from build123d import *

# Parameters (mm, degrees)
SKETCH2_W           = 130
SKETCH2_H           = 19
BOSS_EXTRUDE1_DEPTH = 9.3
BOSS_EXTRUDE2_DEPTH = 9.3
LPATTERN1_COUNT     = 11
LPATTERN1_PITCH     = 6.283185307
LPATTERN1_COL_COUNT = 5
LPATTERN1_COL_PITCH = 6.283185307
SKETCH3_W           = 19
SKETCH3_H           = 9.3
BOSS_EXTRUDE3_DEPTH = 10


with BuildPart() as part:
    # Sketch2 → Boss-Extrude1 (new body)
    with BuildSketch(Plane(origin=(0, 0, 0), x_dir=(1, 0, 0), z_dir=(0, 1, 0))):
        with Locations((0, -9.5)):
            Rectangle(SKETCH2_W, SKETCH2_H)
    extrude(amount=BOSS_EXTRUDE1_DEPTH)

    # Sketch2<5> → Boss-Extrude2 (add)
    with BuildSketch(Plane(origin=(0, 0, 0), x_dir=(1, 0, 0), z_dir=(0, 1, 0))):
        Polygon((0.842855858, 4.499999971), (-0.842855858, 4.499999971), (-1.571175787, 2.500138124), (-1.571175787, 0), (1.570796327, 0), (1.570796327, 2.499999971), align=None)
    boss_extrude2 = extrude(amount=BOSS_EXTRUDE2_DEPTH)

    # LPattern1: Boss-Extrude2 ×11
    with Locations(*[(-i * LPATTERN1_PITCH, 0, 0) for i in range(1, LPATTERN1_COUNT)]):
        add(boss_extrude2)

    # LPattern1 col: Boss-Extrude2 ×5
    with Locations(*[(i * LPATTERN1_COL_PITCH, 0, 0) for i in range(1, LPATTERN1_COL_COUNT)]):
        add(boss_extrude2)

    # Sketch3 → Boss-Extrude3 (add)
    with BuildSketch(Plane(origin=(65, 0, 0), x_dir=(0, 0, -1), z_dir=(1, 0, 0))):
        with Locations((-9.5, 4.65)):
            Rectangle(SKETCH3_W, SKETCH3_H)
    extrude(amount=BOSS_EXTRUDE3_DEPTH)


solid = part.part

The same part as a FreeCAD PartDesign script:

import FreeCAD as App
import Part
import Sketcher

V = App.Vector
Q = App.Units.Quantity


def add_polygon(sketch, points):
    """Adds a closed chain of lines whose ends are joined by coincident constraints."""
    first, n = sketch.GeometryCount, len(points)
    for a, b in zip(points, points[1:] + points[:1]):
        sketch.addGeometry(Part.LineSegment(App.Vector(*a, 0), App.Vector(*b, 0)), False)
    for i in range(n):
        sketch.addConstraint(Sketcher.Constraint("Coincident", first + i, 2, first + (i + 1) % n, 1))

doc = App.newDocument("Part")
params = doc.addObject("Spreadsheet::Sheet", "Params")
for row, (alias, value) in enumerate([
    ("sketch1_width", "130 mm"),
    ("sketch1_height", "19 mm"),
    ("pad1_length", "9.3 mm"),
    ("sketch2_height", "2.5 mm"),
    ("pad2_length", "9.3 mm"),
    ("linearpattern_pitch", "6.283185 mm"),
    ("linearpattern2_pitch", "6.283185 mm"),
    ("sketch3_height", "19 mm"),
    ("sketch3_width", "9.3 mm"),
    ("pad3_length", "10 mm"),
], start=1):
    params.set(f"A{row}", alias)
    params.set(f"B{row}", "=" + value)
    params.setAlias(f"B{row}", alias)

body = doc.addObject("PartDesign::Body", "Body")

# Sketch on XZ plane
sketch1 = body.newObject("Sketcher::SketchObject", "Sketch")
sketch1.AttachmentSupport = (doc.getObject("XZ_Plane"), [""])
sketch1.MapMode = "FlatFace"
add_polygon(sketch1, [(-65, 0), (-65, 19), (65, 19), (65, 0)])  # lines 0-3
sketch1.addConstraint(Sketcher.Constraint("Vertical", 0))
sketch1.addConstraint(Sketcher.Constraint("Horizontal", 1))
sketch1.addConstraint(Sketcher.Constraint("Vertical", 2))
sketch1.addConstraint(Sketcher.Constraint("Horizontal", 3))
sketch1.addConstraint(Sketcher.Constraint("Symmetric", 2, 2, 3, 2, -1, 1))
sketch1.addConstraint(Sketcher.Constraint("DistanceX", 1, 1, 1, 2, 130.0))
sketch1.addConstraint(Sketcher.Constraint("DistanceY", 0, 1, 0, 2, 19.0))
sketch1.setExpression("Constraints[9]", "Params.sketch1_width")
sketch1.setExpression("Constraints[10]", "Params.sketch1_height")
pad1 = body.newObject("PartDesign::Pad", "Pad")
pad1.Profile = sketch1
pad1.setExpression("Length", "Params.pad1_length")
pad1.Reversed = True

# Sketch on XZ plane
sketch2 = body.newObject("Sketcher::SketchObject", "Sketch001")
sketch2.AttachmentSupport = (doc.getObject("XZ_Plane"), [""])
sketch2.MapMode = "FlatFace"
add_polygon(sketch2, [(0.8, -4.5), (-0.8, -4.5), (-1.6, -2.5), (-1.6, 0), (1.6, 0), (1.6, -2.5)])  # lines 0-5
sketch2.addConstraint(Sketcher.Constraint("Horizontal", 0))
sketch2.addConstraint(Sketcher.Constraint("Vertical", 2))
sketch2.addConstraint(Sketcher.Constraint("Horizontal", 3))
sketch2.addConstraint(Sketcher.Constraint("Vertical", 4))
sketch2.addConstraint(Sketcher.Constraint("PointOnObject", 2, 2, -1))
sketch2.addConstraint(Sketcher.Constraint("Equal", 1, 5))
sketch2.addConstraint(Sketcher.Constraint("Angle", 5, Q("-110 deg")))
sketch2.addConstraint(Sketcher.Constraint("DistanceY", 4, 2, 4, 1, 2.5))
sketch2.addConstraint(Sketcher.Constraint("DistanceY", 0, 2, 4, 2, 2.0))
sketch2.addConstraint(Sketcher.Constraint("DistanceX", 0, 2, 0, 1, 1.685712))
sketch2.addConstraint(Sketcher.Constraint("DistanceY", 2, 1, 2, 2, 2.500138))
sketch2.addConstraint(Sketcher.Constraint("DistanceX", 0, 2, -1, 1, 0.842856))
sketch2.setExpression("Constraints[13]", "Params.sketch2_height")
pad2 = body.newObject("PartDesign::Pad", "Pad001")
pad2.Profile = sketch2
pad2.setExpression("Length", "Params.pad2_length")
pad2.Reversed = True
doc.recompute()

linearpattern = body.newObject("PartDesign::LinearPattern", "LinearPattern")
linearpattern.Originals = [pad2]
linearpattern.Direction = (doc.getObject("X_Axis"), [""])
linearpattern.Mode = "offset"
linearpattern.setExpression("Offset", "Params.linearpattern_pitch")
linearpattern.Occurrences = 11
linearpattern.Reversed = True
body.Tip = linearpattern
doc.recompute()

linearpattern2 = body.newObject("PartDesign::LinearPattern", "LinearPattern001")
linearpattern2.Originals = [pad2]
linearpattern2.Direction = (doc.getObject("X_Axis"), [""])
linearpattern2.Mode = "offset"
linearpattern2.setExpression("Offset", "Params.linearpattern2_pitch")
linearpattern2.Occurrences = 5
body.Tip = linearpattern2

# Sketch on YZ plane
sketch3 = body.newObject("Sketcher::SketchObject", "Sketch002")
sketch3.AttachmentSupport = (doc.getObject("YZ_Plane"), [""])
sketch3.MapMode = "FlatFace"
sketch3.AttachmentOffset = App.Placement(V(0, 0, 65), App.Rotation())
add_polygon(sketch3, [(9, 19), (0, 19), (0, 0), (9, 0)])  # lines 0-3
sketch3.addConstraint(Sketcher.Constraint("Horizontal", 0))
sketch3.addConstraint(Sketcher.Constraint("Vertical", 1))
sketch3.addConstraint(Sketcher.Constraint("Horizontal", 2))
sketch3.addConstraint(Sketcher.Constraint("Vertical", 3))
sketch3.addConstraint(Sketcher.Constraint("Coincident", 1, 2, -1, 1))
sketch3.addConstraint(Sketcher.Constraint("DistanceY", 1, 2, 1, 1, 19.0))
sketch3.addConstraint(Sketcher.Constraint("DistanceX", 0, 2, 0, 1, 9.3))
sketch3.setExpression("Constraints[9]", "Params.sketch3_height")
sketch3.setExpression("Constraints[10]", "Params.sketch3_width")
pad3 = body.newObject("PartDesign::Pad", "Pad002")
pad3.Profile = sketch3
pad3.setExpression("Length", "Params.pad3_length")

doc.recompute()
